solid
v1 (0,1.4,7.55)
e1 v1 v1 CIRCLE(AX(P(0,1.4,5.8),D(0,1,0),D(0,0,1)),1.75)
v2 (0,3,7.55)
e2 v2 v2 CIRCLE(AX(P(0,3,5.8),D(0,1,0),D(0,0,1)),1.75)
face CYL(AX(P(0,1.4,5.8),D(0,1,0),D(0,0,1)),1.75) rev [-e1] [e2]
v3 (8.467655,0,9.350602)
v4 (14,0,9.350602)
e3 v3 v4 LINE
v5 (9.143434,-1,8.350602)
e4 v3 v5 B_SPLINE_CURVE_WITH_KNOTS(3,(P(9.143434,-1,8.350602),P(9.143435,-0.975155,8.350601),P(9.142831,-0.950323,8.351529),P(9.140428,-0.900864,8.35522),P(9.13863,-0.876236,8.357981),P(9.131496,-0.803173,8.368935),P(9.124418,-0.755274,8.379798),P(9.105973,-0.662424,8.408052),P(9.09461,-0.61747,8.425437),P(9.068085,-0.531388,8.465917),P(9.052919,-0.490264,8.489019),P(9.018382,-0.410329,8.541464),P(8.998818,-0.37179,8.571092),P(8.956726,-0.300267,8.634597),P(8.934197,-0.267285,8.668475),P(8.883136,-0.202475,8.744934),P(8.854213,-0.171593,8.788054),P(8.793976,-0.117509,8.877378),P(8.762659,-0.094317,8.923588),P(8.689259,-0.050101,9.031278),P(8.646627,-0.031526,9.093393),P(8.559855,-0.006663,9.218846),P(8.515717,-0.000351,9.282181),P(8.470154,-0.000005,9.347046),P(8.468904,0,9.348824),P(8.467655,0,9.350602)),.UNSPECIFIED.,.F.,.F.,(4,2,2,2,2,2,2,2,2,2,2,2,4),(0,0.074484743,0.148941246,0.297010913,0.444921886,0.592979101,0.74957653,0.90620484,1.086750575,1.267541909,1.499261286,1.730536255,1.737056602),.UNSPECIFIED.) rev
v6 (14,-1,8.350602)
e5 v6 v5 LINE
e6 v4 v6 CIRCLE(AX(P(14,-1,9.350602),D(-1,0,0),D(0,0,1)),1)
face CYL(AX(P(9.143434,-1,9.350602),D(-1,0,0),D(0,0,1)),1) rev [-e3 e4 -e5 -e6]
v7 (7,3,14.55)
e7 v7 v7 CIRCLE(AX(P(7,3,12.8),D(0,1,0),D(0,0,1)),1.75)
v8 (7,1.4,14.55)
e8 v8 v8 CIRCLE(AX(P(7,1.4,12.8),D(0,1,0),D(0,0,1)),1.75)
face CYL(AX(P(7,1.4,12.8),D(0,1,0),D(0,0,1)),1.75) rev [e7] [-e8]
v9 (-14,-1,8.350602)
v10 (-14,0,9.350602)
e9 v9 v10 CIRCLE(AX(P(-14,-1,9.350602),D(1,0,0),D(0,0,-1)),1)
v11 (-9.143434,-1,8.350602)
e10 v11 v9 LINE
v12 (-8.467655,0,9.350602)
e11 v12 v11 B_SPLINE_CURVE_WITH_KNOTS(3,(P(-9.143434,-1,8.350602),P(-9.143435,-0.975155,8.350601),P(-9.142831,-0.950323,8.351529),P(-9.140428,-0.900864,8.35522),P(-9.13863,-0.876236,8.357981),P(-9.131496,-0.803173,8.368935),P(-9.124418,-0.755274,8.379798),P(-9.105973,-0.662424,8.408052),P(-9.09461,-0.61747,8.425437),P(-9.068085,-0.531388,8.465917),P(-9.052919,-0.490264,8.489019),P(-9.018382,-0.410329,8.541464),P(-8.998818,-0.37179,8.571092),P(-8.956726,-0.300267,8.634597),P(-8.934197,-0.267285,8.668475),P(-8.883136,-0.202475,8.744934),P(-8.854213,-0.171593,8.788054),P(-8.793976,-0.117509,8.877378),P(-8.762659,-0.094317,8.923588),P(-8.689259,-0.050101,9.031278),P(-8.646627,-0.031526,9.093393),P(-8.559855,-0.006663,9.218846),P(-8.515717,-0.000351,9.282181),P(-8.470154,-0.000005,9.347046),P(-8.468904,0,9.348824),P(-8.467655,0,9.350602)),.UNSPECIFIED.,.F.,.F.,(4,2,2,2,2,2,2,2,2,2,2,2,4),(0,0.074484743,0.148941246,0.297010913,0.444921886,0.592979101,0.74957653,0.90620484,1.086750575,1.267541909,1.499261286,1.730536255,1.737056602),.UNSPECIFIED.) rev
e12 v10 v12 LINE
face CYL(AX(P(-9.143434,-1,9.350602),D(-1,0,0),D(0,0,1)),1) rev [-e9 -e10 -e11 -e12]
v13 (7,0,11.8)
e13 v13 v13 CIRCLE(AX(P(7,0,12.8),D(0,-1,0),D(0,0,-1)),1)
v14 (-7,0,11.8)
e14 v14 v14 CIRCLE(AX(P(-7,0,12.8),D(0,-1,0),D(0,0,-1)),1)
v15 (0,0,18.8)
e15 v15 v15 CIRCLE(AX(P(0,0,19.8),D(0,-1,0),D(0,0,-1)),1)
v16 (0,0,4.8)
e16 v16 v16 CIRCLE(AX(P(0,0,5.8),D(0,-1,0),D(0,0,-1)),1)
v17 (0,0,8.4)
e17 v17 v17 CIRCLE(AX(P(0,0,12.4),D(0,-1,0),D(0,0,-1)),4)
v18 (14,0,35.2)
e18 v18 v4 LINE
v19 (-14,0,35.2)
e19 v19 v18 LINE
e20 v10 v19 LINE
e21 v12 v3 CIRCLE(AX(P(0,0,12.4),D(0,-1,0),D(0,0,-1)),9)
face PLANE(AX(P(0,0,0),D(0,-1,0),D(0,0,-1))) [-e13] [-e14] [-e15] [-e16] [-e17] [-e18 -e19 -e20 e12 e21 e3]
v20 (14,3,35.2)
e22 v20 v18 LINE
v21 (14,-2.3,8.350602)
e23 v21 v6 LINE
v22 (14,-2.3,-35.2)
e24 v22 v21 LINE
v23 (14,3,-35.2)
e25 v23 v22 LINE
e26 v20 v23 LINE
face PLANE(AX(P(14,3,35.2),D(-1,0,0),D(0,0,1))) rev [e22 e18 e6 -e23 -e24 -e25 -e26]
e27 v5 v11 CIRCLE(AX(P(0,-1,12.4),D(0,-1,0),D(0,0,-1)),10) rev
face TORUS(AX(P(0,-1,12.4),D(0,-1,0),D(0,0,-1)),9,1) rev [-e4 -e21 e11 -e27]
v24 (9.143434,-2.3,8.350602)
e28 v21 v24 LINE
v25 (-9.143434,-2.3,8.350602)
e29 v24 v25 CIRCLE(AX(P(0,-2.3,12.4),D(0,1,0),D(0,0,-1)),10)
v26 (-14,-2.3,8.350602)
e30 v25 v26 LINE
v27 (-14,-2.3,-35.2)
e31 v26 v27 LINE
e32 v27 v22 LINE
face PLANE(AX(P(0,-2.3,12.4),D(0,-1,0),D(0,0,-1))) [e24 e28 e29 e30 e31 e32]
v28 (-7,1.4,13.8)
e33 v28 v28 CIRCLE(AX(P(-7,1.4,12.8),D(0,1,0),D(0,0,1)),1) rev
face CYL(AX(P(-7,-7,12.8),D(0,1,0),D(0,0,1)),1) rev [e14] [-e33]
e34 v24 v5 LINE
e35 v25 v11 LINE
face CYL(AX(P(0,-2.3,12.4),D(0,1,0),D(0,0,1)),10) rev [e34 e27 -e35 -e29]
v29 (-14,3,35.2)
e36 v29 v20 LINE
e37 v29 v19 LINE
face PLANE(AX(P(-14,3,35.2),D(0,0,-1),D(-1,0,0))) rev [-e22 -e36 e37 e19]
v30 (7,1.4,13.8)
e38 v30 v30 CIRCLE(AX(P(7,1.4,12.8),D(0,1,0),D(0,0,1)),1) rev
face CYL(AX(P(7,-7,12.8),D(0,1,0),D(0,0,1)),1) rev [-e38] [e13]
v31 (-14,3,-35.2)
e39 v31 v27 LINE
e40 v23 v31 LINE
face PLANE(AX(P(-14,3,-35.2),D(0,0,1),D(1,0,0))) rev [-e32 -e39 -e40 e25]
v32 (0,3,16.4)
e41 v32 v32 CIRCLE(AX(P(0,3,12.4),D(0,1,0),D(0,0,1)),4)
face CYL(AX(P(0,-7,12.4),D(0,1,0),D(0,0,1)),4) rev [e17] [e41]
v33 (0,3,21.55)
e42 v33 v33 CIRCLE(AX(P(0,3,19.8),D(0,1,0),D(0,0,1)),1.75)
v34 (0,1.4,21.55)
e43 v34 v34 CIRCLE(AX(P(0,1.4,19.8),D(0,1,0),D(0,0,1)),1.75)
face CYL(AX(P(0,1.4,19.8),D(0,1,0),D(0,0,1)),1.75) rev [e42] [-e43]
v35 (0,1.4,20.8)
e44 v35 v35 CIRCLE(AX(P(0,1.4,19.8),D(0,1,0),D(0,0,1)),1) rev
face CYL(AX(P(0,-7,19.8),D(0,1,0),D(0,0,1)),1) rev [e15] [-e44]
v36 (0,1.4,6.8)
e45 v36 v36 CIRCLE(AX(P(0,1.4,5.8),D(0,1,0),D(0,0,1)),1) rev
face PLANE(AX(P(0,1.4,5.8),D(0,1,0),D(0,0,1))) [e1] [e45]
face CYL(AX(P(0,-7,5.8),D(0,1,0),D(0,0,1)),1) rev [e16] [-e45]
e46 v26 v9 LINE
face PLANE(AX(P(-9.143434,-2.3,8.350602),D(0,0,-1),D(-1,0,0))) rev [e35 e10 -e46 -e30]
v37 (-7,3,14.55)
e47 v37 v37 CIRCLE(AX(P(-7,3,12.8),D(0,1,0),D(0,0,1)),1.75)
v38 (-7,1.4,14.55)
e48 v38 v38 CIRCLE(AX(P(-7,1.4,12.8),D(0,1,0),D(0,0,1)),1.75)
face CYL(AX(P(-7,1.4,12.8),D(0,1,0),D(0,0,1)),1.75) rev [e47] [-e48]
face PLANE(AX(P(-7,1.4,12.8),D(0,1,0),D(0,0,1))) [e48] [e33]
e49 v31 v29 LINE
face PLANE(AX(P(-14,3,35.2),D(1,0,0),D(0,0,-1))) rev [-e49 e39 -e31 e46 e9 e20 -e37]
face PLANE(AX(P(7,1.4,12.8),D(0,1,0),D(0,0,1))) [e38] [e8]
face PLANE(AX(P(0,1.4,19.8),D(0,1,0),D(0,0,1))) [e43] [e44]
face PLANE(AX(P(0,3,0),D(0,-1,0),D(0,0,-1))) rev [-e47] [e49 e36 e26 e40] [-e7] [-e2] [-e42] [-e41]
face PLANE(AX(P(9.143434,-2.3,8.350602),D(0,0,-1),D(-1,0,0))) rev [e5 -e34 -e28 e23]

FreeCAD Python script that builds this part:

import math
import FreeCAD as App
import Part
import Sketcher

V = App.Vector


def edges_at(feature, points):
    """Names of the edges that pass closest to the given points."""
    edges = feature.Shape.Edges
    near = lambda p: min(range(len(edges)), key=lambda i: edges[i].distToShape(Part.Vertex(*p))[0])
    return sorted({f"Edge{near(p) + 1}" for p in points})

doc = App.newDocument("Part")
body = doc.addObject("PartDesign::Body", "Body")

# Sketch on XZ plane
sketch1 = body.newObject("Sketcher::SketchObject", "Sketch")
sketch1.AttachmentSupport = (doc.getObject("XZ_Plane"), [""])
sketch1.MapMode = "FlatFace"
sketch1.addGeometry(Part.LineSegment(V(-14, -35, 0), V(-14, 35, 0)), False)
sketch1.addGeometry(Part.LineSegment(V(-14, 35, 0), V(14, 35, 0)), False)
sketch1.addGeometry(Part.LineSegment(V(14, 35, 0), V(14, -35, 0)), False)
sketch1.addGeometry(Part.LineSegment(V(14, -35, 0), V(-14, -35, 0)), False)
sketch1.addConstraint(Sketcher.Constraint("Coincident", 0, 2, 1, 1))
sketch1.addConstraint(Sketcher.Constraint("Coincident", 1, 2, 2, 1))
sketch1.addConstraint(Sketcher.Constraint("Coincident", 2, 2, 3, 1))
sketch1.addConstraint(Sketcher.Constraint("Coincident", 3, 2, 0, 1))
sketch1.addConstraint(Sketcher.Constraint("Vertical", 0))
sketch1.addConstraint(Sketcher.Constraint("Horizontal", 1))
sketch1.addConstraint(Sketcher.Constraint("Vertical", 2))
sketch1.addConstraint(Sketcher.Constraint("Horizontal", 3))
sketch1.addConstraint(Sketcher.Constraint("Symmetric", 0, 2, 2, 2, -1, 1))
sketch1.addConstraint(Sketcher.Constraint("DistanceX", 1, 1, 1, 2, 28.0))
sketch1.addConstraint(Sketcher.Constraint("DistanceY", 0, 1, 0, 2, 70.4))
pad1 = body.newObject("PartDesign::Pad", "Pad")
pad1.Profile = sketch1
pad1.Length = 3
pad1.Reversed = True

# Sketch on XZ plane
sketch2 = body.newObject("Sketcher::SketchObject", "Sketch001")
sketch2.AttachmentSupport = (doc.getObject("XZ_Plane"), [""])
sketch2.MapMode = "FlatFace"
sketch2.AttachmentOffset = App.Placement(V(0, 0, -3), App.Rotation())
sketch2.addGeometry(Part.Circle(V(7, 12.8, 0), V(0, 0, 1), 1), False)
sketch2.addGeometry(Part.Circle(V(0, 19.8, 0), V(0, 0, 1), 1), False)
sketch2.addGeometry(Part.Circle(V(-7, 12.8, 0), V(0, 0, 1), 1), False)
sketch2.addGeometry(Part.Circle(V(0, 5.8, 0), V(0, 0, 1), 1), False)
sketch2.addConstraint(Sketcher.Constraint("Equal", 0, 1))
sketch2.addConstraint(Sketcher.Constraint("Equal", 1, 2))
sketch2.addConstraint(Sketcher.Constraint("Equal", 2, 3))
sketch2.addConstraint(Sketcher.Constraint("Symmetric", 0, 3, 2, 3, -2))
sketch2.addConstraint(Sketcher.Constraint("PointOnObject", 1, 3, -2))
sketch2.addConstraint(Sketcher.Constraint("PointOnObject", 3, 3, -2))
sketch2.addConstraint(Sketcher.Constraint("Diameter", 0, 2.0))
sketch2.addConstraint(Sketcher.Constraint("DistanceX", -1, 1, 0, 3, 7.0))
sketch2.addConstraint(Sketcher.Constraint("DistanceY", 0, 3, 1, 3, 7.0))
sketch2.addConstraint(Sketcher.Constraint("DistanceY", 3, 3, 0, 3, 7.0))
sketch2.addConstraint(Sketcher.Constraint("DistanceY", -1, 1, 0, 3, 12.8))
pocket1 = body.newObject("PartDesign::Pocket", "Pocket")
pocket1.Profile = sketch2
pocket1.Length = 10
pocket1.Reversed = True

# Sketch on XZ plane
sketch3 = body.newObject("Sketcher::SketchObject", "Sketch002")
sketch3.AttachmentSupport = (doc.getObject("XZ_Plane"), [""])
sketch3.MapMode = "FlatFace"
sketch3.AttachmentOffset = App.Placement(V(0, 0, -3), App.Rotation())
sketch3.addGeometry(Part.Circle(V(0, 12.4, 0), V(0, 0, 1), 4), False)
sketch3.addConstraint(Sketcher.Constraint("PointOnObject", 0, 3, -2))
sketch3.addConstraint(Sketcher.Constraint("Diameter", 0, 8.0))
sketch3.addConstraint(Sketcher.Constraint("DistanceY", -1, 1, 0, 3, 12.4))
pocket2 = body.newObject("PartDesign::Pocket", "Pocket001")
pocket2.Profile = sketch3
pocket2.Length = 10
pocket2.Reversed = True

# Sketch on XZ plane
sketch4 = body.newObject("Sketcher::SketchObject", "Sketch003")
sketch4.AttachmentSupport = (doc.getObject("XZ_Plane"), [""])
sketch4.MapMode = "FlatFace"
sketch4.AttachmentOffset = App.Placement(V(0, 0, -3), App.Rotation())
sketch4.addGeometry(Part.Circle(V(0, 19.8, 0), V(0, 0, 1), 1.8), False)
sketch4.addGeometry(Part.Circle(V(-7, 12.8, 0), V(0, 0, 1), 1.8), False)
sketch4.addGeometry(Part.Circle(V(0, 5.8, 0), V(0, 0, 1), 1.8), False)
sketch4.addGeometry(Part.Circle(V(7, 12.8, 0), V(0, 0, 1), 1.8), False)
sketch4.addConstraint(Sketcher.Constraint("Equal", 0, 1))
sketch4.addConstraint(Sketcher.Constraint("Equal", 1, 2))
sketch4.addConstraint(Sketcher.Constraint("Equal", 2, 3))
sketch4.addConstraint(Sketcher.Constraint("Symmetric", 1, 3, 3, 3, -2))
sketch4.addConstraint(Sketcher.Constraint("PointOnObject", 0, 3, -2))
sketch4.addConstraint(Sketcher.Constraint("PointOnObject", 2, 3, -2))
sketch4.addConstraint(Sketcher.Constraint("Diameter", 0, 3.5))
sketch4.addConstraint(Sketcher.Constraint("DistanceX", 1, 3, -1, 1, 7.0))
sketch4.addConstraint(Sketcher.Constraint("DistanceY", 1, 3, 0, 3, 7.0))
sketch4.addConstraint(Sketcher.Constraint("DistanceY", 2, 3, 1, 3, 7.0))
sketch4.addConstraint(Sketcher.Constraint("DistanceY", -1, 1, 0, 3, 19.8))
pocket3 = body.newObject("PartDesign::Pocket", "Pocket002")
pocket3.Profile = sketch4
pocket3.Length = 1.6
pocket3.Reversed = True

# Sketch on XZ plane
sketch5 = body.newObject("Sketcher::SketchObject", "Sketch004")
sketch5.AttachmentSupport = (doc.getObject("XZ_Plane"), [""])
sketch5.MapMode = "FlatFace"
sketch5.addGeometry(Part.LineSegment(V(14, 8.4, 0), V(9.1, 8.4, 0)), False)
sketch5.addGeometry(Part.ArcOfCircle(Part.Circle(V(0, 12.4, 0), V(0, 0, 1), 10), math.radians(-156), math.radians(-24)), False)
sketch5.addGeometry(Part.LineSegment(V(-9.1, 8.4, 0), V(-14, 8.4, 0)), False)
sketch5.addGeometry(Part.LineSegment(V(-14, 8.4, 0), V(-14, -35.2, 0)), False)
sketch5.addGeometry(Part.LineSegment(V(-14, -35.2, 0), V(14, -35.2, 0)), False)
sketch5.addGeometry(Part.LineSegment(V(14, -35.2, 0), V(14, 8.4, 0)), False)
sketch5.addConstraint(Sketcher.Constraint("Coincident", 0, 2, 1, 2))
sketch5.addConstraint(Sketcher.Constraint("Coincident", 1, 1, 2, 1))
sketch5.addConstraint(Sketcher.Constraint("Coincident", 2, 2, 3, 1))
sketch5.addConstraint(Sketcher.Constraint("Coincident", 3, 2, 4, 1))
sketch5.addConstraint(Sketcher.Constraint("Coincident", 4, 2, 5, 1))
sketch5.addConstraint(Sketcher.Constraint("Coincident", 5, 2, 0, 1))
sketch5.addConstraint(Sketcher.Constraint("Horizontal", 0))
sketch5.addConstraint(Sketcher.Constraint("Horizontal", 2))
sketch5.addConstraint(Sketcher.Constraint("Vertical", 3))
sketch5.addConstraint(Sketcher.Constraint("Horizontal", 4))
sketch5.addConstraint(Sketcher.Constraint("Vertical", 5))
sketch5.addConstraint(Sketcher.Constraint("Symmetric", 0, 2, 1, 1, -2))
sketch5.addConstraint(Sketcher.Constraint("Equal", 0, 2))
sketch5.addConstraint(Sketcher.Constraint("Radius", 1, 10.0))
sketch5.addConstraint(Sketcher.Constraint("DistanceX", 4, 1, 4, 2, 28.0))
sketch5.addConstraint(Sketcher.Constraint("DistanceY", -1, 1, 1, 3, 12.4))
sketch5.addConstraint(Sketcher.Constraint("DistanceY", 3, 2, -1, 1, 35.2))
sketch5.addConstraint(Sketcher.Constraint("DistanceX", 0, 2, 0, 1, 4.856566))
pad2 = body.newObject("PartDesign::Pad", "Pad001")
pad2.Profile = sketch5
pad2.Length = 2.3
doc.recompute()

fillet = body.newObject("PartDesign::Fillet", "Fillet")
fillet.Base = (pad2, edges_at(pad2, [(11.572, 0, 8.351), (0, 0, 2.4), (-11.572, 0, 8.351)]))
fillet.Radius = 1

doc.recompute()
